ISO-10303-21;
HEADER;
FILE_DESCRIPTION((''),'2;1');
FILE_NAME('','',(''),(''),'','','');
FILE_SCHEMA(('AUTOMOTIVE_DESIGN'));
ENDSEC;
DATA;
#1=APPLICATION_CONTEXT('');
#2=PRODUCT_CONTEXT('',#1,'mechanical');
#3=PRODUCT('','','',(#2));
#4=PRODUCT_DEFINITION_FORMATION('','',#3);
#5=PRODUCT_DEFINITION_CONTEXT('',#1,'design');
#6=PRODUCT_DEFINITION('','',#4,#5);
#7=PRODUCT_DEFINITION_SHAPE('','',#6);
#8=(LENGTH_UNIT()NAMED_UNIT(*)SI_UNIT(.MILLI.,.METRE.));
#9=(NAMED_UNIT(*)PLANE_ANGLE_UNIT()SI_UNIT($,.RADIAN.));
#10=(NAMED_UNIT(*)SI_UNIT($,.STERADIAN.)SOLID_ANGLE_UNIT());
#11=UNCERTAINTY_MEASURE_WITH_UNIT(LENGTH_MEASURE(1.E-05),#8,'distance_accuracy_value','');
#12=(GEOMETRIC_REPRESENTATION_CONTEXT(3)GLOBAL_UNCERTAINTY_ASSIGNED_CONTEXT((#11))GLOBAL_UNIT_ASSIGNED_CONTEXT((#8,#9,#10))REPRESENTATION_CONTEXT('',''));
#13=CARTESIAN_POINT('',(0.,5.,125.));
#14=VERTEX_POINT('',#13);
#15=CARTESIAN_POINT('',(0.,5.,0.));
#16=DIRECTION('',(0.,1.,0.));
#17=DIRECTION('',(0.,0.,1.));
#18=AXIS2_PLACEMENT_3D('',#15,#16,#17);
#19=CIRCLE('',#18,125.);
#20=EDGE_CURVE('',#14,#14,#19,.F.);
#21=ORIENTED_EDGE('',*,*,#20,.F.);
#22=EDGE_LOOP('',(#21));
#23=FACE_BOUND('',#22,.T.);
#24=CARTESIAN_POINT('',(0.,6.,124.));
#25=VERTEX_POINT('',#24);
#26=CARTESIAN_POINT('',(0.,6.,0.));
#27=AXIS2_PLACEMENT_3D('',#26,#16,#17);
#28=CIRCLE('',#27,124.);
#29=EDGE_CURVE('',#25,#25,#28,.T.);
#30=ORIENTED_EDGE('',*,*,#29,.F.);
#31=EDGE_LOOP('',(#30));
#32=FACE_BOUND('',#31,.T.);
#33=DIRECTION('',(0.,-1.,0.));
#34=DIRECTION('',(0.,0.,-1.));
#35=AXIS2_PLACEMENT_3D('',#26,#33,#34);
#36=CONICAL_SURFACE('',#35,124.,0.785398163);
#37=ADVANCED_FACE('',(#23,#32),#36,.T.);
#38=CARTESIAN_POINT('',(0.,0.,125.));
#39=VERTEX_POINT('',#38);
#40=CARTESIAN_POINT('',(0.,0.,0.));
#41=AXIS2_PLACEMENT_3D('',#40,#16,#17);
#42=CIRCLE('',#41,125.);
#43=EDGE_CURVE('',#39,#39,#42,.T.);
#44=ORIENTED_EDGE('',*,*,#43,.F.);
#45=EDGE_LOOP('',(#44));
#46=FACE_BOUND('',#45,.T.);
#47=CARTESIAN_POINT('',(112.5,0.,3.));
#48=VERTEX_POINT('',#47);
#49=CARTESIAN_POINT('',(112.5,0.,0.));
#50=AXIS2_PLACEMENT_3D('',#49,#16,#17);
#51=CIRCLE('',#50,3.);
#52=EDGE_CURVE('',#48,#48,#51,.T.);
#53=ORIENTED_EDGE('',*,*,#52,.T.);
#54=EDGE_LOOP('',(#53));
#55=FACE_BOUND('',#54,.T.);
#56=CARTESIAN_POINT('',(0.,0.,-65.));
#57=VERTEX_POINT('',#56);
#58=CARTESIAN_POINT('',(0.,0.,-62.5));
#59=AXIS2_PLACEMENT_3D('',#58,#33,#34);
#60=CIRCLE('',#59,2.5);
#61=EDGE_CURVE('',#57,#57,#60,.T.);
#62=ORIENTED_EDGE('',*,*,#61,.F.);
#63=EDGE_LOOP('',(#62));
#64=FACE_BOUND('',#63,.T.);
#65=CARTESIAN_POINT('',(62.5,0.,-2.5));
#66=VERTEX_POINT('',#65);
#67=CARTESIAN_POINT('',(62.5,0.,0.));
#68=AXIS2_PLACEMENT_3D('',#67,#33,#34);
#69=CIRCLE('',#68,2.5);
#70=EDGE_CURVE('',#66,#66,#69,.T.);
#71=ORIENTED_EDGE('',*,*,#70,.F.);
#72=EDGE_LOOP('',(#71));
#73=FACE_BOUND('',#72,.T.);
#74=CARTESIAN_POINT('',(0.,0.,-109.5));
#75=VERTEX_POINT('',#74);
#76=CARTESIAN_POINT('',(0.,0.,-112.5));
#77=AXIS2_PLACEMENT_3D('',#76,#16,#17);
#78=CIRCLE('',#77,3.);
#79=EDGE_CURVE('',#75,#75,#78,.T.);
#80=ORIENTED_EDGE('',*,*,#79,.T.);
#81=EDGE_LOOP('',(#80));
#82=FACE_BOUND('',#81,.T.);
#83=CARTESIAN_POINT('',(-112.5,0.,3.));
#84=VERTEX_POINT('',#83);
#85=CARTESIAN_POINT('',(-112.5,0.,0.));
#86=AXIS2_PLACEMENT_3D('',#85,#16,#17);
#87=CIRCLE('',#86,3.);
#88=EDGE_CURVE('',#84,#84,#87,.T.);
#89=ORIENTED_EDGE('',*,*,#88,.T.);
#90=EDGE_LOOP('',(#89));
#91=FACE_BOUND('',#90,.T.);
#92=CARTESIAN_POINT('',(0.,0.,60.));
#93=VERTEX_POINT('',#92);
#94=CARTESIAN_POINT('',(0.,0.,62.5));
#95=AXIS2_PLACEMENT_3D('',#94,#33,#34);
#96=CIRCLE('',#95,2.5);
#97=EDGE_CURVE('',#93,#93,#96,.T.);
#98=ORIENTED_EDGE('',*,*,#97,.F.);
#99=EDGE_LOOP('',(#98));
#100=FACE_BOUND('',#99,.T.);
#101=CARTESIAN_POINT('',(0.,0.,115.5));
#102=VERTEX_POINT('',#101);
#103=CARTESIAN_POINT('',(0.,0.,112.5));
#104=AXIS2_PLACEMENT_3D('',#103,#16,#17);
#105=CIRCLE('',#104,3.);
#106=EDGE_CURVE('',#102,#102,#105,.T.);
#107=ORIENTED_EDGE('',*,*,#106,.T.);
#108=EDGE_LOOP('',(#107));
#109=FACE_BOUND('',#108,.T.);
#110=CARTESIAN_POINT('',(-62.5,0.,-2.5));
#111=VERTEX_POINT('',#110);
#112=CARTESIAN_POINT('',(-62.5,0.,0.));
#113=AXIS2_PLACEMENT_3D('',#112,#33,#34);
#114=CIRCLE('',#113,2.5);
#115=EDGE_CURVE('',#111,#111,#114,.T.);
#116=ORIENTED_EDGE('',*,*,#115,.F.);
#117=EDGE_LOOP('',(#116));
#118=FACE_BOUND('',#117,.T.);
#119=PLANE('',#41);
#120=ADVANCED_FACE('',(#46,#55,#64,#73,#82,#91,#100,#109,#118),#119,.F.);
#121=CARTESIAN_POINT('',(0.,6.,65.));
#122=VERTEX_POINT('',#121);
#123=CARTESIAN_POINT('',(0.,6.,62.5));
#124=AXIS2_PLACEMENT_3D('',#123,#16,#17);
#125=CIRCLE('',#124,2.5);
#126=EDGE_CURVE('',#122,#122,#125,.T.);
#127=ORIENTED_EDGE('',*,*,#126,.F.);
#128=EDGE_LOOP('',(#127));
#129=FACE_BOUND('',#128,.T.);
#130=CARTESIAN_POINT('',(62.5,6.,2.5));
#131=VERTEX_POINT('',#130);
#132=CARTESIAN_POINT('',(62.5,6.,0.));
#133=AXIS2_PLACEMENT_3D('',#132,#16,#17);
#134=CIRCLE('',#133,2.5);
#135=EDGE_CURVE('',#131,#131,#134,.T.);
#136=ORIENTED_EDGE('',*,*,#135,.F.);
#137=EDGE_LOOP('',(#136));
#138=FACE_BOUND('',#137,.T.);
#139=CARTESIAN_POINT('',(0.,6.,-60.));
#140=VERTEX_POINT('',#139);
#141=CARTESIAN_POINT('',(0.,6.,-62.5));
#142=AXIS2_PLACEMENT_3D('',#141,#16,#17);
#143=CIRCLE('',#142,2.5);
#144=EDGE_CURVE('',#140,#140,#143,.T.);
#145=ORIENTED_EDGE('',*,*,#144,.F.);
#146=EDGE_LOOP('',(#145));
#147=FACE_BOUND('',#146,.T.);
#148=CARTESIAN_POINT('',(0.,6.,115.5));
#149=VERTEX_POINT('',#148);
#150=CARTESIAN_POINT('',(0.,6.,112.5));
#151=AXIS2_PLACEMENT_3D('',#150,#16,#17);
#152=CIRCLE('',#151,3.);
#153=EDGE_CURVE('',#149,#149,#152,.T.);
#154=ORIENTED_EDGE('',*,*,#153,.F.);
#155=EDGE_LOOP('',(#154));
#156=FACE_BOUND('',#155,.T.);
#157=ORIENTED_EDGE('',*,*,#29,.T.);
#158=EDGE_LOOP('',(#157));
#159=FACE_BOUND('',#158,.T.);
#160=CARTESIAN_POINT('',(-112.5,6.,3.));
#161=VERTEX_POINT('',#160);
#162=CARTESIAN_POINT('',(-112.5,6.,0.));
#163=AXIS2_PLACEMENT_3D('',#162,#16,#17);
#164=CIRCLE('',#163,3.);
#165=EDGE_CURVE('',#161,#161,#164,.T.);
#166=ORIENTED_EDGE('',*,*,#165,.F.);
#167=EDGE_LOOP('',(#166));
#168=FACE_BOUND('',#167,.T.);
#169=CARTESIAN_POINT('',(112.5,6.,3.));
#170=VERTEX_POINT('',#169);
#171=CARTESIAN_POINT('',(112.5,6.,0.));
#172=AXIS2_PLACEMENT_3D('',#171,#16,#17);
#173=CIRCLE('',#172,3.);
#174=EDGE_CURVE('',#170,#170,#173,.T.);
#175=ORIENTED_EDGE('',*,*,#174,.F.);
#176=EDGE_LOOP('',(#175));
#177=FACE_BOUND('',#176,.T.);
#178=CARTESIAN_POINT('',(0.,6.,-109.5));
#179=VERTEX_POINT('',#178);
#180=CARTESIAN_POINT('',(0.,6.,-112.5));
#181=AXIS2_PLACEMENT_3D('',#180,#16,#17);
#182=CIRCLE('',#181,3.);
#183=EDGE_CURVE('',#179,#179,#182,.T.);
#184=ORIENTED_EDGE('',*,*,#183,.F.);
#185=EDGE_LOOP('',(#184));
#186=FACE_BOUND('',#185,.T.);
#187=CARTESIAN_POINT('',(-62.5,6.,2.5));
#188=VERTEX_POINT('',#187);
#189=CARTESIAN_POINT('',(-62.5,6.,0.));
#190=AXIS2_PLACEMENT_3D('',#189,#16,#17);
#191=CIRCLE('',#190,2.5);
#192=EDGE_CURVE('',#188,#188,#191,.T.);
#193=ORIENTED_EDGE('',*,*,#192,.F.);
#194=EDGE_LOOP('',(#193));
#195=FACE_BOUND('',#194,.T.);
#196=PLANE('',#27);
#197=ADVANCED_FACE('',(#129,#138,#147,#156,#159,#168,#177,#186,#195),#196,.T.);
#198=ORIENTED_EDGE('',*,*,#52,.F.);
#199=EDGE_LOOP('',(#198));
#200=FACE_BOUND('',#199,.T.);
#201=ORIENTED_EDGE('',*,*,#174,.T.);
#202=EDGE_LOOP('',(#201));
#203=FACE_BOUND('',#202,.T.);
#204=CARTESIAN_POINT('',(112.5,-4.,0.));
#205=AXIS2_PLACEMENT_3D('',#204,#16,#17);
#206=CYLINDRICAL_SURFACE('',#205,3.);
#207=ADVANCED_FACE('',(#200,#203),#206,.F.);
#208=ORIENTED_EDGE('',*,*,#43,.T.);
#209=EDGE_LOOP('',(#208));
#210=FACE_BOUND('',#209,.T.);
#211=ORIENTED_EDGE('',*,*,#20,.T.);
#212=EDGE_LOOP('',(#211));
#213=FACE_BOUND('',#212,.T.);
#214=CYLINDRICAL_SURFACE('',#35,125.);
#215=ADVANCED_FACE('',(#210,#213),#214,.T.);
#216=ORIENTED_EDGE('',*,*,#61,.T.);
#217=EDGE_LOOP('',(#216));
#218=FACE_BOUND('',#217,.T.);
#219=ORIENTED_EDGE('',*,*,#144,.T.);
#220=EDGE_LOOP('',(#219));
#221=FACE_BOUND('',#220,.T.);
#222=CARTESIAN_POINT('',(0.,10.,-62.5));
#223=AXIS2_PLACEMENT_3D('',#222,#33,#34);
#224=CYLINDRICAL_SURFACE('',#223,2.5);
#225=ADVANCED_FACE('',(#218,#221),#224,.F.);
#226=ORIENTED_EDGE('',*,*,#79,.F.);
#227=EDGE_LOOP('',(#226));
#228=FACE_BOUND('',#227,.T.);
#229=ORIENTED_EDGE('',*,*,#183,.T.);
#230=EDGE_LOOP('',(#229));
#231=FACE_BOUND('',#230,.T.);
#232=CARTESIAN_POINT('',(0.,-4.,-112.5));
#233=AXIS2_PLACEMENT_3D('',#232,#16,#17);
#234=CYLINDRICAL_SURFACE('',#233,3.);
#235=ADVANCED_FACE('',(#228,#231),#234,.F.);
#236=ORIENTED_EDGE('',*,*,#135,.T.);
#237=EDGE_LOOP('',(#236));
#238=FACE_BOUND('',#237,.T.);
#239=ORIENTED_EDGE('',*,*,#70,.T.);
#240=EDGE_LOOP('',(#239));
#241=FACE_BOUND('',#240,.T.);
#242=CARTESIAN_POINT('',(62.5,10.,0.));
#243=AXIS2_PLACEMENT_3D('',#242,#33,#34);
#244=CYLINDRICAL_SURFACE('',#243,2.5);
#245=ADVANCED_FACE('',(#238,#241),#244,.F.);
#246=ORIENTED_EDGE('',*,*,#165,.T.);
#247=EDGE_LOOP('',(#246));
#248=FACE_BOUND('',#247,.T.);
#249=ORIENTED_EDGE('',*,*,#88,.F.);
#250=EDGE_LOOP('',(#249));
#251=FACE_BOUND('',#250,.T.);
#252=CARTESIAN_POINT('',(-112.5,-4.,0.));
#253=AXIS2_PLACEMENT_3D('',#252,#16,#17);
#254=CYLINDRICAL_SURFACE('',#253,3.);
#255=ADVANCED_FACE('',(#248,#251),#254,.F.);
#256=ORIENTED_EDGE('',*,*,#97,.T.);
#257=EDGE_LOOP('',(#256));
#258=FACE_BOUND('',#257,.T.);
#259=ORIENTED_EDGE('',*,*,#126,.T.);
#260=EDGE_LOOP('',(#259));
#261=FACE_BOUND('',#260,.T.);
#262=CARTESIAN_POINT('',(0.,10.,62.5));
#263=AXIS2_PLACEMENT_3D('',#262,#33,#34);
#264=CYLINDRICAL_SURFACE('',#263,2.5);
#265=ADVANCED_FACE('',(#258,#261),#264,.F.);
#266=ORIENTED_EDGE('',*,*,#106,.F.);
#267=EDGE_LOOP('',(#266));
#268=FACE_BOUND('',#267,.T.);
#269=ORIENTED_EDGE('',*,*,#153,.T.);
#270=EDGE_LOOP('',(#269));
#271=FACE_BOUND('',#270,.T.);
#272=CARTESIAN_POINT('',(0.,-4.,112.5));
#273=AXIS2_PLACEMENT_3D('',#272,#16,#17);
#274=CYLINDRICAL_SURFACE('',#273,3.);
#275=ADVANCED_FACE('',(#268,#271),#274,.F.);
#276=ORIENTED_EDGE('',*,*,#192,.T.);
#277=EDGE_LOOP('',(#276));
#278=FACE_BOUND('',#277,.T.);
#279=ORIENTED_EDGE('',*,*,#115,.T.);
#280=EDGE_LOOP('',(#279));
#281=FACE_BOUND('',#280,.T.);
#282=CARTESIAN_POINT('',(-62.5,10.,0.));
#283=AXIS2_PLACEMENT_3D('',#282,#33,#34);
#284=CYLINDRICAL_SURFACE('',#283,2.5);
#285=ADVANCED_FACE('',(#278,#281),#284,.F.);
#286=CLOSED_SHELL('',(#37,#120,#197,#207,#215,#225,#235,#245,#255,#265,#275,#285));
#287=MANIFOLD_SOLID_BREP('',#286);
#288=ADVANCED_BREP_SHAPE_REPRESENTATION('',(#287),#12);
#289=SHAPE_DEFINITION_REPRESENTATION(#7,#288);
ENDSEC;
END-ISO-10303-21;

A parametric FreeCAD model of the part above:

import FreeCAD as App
import Part
import Sketcher


def edges_at(feature, points):
    """Names of the edges that pass closest to the given points."""
    edges = feature.Shape.Edges
    near = lambda p: min(range(len(edges)), key=lambda i: edges[i].distToShape(Part.Vertex(*p))[0])
    return sorted({f"Edge{near(p) + 1}" for p in points})

doc = App.newDocument("Part")
params = doc.addObject("Spreadsheet::Sheet", "Params")
for row, (alias, value) in enumerate([
    ("sketch1_diameter", "250 mm"),
    ("pad1_length", "6 mm"),
    ("sketch2_diameter", "6 mm"),
    ("pocket1_length", "10 mm"),
    ("sketch3_diameter", "5 mm"),
    ("pocket2_length", "10 mm"),
    ("chamfer_size", "1 mm"),
], start=1):
    params.set(f"A{row}", alias)
    params.set(f"B{row}", "=" + value)
    params.setAlias(f"B{row}", alias)

body = doc.addObject("PartDesign::Body", "Body")

sketch1 = body.newObject("Sketcher::SketchObject", "Sketch")
sketch1.AttachmentSupport = (doc.getObject("XZ_Plane"), [""])
sketch1.MapMode = "FlatFace"
sketch1.addGeometry(Part.Circle(App.Vector(0, 0, 0), App.Vector(0, 0, 1), 125), False)
sketch1.addConstraint([
    Sketcher.Constraint("Coincident", 0, 3, -1, 1),
    Sketcher.Constraint("Diameter", 0, 250.0),
])
sketch1.setExpression("Constraints[1]", "Params.sketch1_diameter")
pad1 = body.newObject("PartDesign::Pad", "Pad")
pad1.Profile = sketch1
pad1.setExpression("Length", "Params.pad1_length")
pad1.Reversed = True

sketch2 = body.newObject("Sketcher::SketchObject", "Sketch001")
sketch2.AttachmentSupport = (doc.getObject("XZ_Plane"), [""])
sketch2.MapMode = "FlatFace"
sketch2.AttachmentOffset = App.Placement(App.Vector(0, 0, -6), App.Rotation())
sketch2.addGeometry([
    Part.Circle(App.Vector(0, -112.5, 0), App.Vector(0, 0, 1), 3),
    Part.Circle(App.Vector(-112.5, 0, 0), App.Vector(0, 0, 1), 3),
    Part.Circle(App.Vector(0, 112.5, 0), App.Vector(0, 0, 1), 3),
    Part.Circle(App.Vector(112.5, 0, 0), App.Vector(0, 0, 1), 3),
], False)
sketch2.addConstraint([
    Sketcher.Constraint("Equal", 0, 1),
    Sketcher.Constraint("Equal", 1, 2),
    Sketcher.Constraint("Equal", 2, 3),
    Sketcher.Constraint("Symmetric", 0, 3, 2, 3, -1, 1),
    Sketcher.Constraint("Symmetric", 1, 3, 3, 3, -1, 1),
    Sketcher.Constraint("PointOnObject", 0, 3, -2),
    Sketcher.Constraint("PointOnObject", 1, 3, -1),
    Sketcher.Constraint("Diameter", 0, 6.0),
    Sketcher.Constraint("DistanceY", 0, 3, 2, 3, 225.0),
    Sketcher.Constraint("DistanceX", 1, 3, 3, 3, 225.0),
])
sketch2.setExpression("Constraints[7]", "Params.sketch2_diameter")
pocket1 = body.newObject("PartDesign::Pocket", "Pocket")
pocket1.Profile = sketch2
pocket1.setExpression("Length", "Params.pocket1_length")
pocket1.Reversed = True

sketch3 = body.newObject("Sketcher::SketchObject", "Sketch002")
sketch3.AttachmentSupport = (doc.getObject("XZ_Plane"), [""])
sketch3.MapMode = "FlatFace"
sketch3.addGeometry([
    Part.Circle(App.Vector(0, 62.5, 0), App.Vector(0, 0, 1), 2.5),
    Part.Circle(App.Vector(0, -62.5, 0), App.Vector(0, 0, 1), 2.5),
    Part.Circle(App.Vector(62.5, 0, 0), App.Vector(0, 0, 1), 2.5),
    Part.Circle(App.Vector(-62.5, 0, 0), App.Vector(0, 0, 1), 2.5),
], False)
sketch3.addConstraint([
    Sketcher.Constraint("Equal", 0, 1),
    Sketcher.Constraint("Equal", 1, 2),
    Sketcher.Constraint("Equal", 2, 3),
    Sketcher.Constraint("Symmetric", 0, 3, 1, 3, -1, 1),
    Sketcher.Constraint("Symmetric", 2, 3, 3, 3, -1, 1),
    Sketcher.Constraint("PointOnObject", 0, 3, -2),
    Sketcher.Constraint("PointOnObject", 2, 3, -1),
    Sketcher.Constraint("Diameter", 0, 5.0),
    Sketcher.Constraint("DistanceY", 1, 3, 0, 3, 125.0),
    Sketcher.Constraint("DistanceX", 3, 3, 2, 3, 125.0),
])
sketch3.setExpression("Constraints[7]", "Params.sketch3_diameter")
pocket2 = body.newObject("PartDesign::Pocket", "Pocket001")
pocket2.Profile = sketch3
pocket2.setExpression("Length", "Params.pocket2_length")
doc.recompute()

chamfer = body.newObject("PartDesign::Chamfer", "Chamfer")
chamfer.Base = (pocket2, edges_at(pocket2, [(0, 6, -125)]))
chamfer.setExpression("Size", "Params.chamfer_size")

doc.recompute()
